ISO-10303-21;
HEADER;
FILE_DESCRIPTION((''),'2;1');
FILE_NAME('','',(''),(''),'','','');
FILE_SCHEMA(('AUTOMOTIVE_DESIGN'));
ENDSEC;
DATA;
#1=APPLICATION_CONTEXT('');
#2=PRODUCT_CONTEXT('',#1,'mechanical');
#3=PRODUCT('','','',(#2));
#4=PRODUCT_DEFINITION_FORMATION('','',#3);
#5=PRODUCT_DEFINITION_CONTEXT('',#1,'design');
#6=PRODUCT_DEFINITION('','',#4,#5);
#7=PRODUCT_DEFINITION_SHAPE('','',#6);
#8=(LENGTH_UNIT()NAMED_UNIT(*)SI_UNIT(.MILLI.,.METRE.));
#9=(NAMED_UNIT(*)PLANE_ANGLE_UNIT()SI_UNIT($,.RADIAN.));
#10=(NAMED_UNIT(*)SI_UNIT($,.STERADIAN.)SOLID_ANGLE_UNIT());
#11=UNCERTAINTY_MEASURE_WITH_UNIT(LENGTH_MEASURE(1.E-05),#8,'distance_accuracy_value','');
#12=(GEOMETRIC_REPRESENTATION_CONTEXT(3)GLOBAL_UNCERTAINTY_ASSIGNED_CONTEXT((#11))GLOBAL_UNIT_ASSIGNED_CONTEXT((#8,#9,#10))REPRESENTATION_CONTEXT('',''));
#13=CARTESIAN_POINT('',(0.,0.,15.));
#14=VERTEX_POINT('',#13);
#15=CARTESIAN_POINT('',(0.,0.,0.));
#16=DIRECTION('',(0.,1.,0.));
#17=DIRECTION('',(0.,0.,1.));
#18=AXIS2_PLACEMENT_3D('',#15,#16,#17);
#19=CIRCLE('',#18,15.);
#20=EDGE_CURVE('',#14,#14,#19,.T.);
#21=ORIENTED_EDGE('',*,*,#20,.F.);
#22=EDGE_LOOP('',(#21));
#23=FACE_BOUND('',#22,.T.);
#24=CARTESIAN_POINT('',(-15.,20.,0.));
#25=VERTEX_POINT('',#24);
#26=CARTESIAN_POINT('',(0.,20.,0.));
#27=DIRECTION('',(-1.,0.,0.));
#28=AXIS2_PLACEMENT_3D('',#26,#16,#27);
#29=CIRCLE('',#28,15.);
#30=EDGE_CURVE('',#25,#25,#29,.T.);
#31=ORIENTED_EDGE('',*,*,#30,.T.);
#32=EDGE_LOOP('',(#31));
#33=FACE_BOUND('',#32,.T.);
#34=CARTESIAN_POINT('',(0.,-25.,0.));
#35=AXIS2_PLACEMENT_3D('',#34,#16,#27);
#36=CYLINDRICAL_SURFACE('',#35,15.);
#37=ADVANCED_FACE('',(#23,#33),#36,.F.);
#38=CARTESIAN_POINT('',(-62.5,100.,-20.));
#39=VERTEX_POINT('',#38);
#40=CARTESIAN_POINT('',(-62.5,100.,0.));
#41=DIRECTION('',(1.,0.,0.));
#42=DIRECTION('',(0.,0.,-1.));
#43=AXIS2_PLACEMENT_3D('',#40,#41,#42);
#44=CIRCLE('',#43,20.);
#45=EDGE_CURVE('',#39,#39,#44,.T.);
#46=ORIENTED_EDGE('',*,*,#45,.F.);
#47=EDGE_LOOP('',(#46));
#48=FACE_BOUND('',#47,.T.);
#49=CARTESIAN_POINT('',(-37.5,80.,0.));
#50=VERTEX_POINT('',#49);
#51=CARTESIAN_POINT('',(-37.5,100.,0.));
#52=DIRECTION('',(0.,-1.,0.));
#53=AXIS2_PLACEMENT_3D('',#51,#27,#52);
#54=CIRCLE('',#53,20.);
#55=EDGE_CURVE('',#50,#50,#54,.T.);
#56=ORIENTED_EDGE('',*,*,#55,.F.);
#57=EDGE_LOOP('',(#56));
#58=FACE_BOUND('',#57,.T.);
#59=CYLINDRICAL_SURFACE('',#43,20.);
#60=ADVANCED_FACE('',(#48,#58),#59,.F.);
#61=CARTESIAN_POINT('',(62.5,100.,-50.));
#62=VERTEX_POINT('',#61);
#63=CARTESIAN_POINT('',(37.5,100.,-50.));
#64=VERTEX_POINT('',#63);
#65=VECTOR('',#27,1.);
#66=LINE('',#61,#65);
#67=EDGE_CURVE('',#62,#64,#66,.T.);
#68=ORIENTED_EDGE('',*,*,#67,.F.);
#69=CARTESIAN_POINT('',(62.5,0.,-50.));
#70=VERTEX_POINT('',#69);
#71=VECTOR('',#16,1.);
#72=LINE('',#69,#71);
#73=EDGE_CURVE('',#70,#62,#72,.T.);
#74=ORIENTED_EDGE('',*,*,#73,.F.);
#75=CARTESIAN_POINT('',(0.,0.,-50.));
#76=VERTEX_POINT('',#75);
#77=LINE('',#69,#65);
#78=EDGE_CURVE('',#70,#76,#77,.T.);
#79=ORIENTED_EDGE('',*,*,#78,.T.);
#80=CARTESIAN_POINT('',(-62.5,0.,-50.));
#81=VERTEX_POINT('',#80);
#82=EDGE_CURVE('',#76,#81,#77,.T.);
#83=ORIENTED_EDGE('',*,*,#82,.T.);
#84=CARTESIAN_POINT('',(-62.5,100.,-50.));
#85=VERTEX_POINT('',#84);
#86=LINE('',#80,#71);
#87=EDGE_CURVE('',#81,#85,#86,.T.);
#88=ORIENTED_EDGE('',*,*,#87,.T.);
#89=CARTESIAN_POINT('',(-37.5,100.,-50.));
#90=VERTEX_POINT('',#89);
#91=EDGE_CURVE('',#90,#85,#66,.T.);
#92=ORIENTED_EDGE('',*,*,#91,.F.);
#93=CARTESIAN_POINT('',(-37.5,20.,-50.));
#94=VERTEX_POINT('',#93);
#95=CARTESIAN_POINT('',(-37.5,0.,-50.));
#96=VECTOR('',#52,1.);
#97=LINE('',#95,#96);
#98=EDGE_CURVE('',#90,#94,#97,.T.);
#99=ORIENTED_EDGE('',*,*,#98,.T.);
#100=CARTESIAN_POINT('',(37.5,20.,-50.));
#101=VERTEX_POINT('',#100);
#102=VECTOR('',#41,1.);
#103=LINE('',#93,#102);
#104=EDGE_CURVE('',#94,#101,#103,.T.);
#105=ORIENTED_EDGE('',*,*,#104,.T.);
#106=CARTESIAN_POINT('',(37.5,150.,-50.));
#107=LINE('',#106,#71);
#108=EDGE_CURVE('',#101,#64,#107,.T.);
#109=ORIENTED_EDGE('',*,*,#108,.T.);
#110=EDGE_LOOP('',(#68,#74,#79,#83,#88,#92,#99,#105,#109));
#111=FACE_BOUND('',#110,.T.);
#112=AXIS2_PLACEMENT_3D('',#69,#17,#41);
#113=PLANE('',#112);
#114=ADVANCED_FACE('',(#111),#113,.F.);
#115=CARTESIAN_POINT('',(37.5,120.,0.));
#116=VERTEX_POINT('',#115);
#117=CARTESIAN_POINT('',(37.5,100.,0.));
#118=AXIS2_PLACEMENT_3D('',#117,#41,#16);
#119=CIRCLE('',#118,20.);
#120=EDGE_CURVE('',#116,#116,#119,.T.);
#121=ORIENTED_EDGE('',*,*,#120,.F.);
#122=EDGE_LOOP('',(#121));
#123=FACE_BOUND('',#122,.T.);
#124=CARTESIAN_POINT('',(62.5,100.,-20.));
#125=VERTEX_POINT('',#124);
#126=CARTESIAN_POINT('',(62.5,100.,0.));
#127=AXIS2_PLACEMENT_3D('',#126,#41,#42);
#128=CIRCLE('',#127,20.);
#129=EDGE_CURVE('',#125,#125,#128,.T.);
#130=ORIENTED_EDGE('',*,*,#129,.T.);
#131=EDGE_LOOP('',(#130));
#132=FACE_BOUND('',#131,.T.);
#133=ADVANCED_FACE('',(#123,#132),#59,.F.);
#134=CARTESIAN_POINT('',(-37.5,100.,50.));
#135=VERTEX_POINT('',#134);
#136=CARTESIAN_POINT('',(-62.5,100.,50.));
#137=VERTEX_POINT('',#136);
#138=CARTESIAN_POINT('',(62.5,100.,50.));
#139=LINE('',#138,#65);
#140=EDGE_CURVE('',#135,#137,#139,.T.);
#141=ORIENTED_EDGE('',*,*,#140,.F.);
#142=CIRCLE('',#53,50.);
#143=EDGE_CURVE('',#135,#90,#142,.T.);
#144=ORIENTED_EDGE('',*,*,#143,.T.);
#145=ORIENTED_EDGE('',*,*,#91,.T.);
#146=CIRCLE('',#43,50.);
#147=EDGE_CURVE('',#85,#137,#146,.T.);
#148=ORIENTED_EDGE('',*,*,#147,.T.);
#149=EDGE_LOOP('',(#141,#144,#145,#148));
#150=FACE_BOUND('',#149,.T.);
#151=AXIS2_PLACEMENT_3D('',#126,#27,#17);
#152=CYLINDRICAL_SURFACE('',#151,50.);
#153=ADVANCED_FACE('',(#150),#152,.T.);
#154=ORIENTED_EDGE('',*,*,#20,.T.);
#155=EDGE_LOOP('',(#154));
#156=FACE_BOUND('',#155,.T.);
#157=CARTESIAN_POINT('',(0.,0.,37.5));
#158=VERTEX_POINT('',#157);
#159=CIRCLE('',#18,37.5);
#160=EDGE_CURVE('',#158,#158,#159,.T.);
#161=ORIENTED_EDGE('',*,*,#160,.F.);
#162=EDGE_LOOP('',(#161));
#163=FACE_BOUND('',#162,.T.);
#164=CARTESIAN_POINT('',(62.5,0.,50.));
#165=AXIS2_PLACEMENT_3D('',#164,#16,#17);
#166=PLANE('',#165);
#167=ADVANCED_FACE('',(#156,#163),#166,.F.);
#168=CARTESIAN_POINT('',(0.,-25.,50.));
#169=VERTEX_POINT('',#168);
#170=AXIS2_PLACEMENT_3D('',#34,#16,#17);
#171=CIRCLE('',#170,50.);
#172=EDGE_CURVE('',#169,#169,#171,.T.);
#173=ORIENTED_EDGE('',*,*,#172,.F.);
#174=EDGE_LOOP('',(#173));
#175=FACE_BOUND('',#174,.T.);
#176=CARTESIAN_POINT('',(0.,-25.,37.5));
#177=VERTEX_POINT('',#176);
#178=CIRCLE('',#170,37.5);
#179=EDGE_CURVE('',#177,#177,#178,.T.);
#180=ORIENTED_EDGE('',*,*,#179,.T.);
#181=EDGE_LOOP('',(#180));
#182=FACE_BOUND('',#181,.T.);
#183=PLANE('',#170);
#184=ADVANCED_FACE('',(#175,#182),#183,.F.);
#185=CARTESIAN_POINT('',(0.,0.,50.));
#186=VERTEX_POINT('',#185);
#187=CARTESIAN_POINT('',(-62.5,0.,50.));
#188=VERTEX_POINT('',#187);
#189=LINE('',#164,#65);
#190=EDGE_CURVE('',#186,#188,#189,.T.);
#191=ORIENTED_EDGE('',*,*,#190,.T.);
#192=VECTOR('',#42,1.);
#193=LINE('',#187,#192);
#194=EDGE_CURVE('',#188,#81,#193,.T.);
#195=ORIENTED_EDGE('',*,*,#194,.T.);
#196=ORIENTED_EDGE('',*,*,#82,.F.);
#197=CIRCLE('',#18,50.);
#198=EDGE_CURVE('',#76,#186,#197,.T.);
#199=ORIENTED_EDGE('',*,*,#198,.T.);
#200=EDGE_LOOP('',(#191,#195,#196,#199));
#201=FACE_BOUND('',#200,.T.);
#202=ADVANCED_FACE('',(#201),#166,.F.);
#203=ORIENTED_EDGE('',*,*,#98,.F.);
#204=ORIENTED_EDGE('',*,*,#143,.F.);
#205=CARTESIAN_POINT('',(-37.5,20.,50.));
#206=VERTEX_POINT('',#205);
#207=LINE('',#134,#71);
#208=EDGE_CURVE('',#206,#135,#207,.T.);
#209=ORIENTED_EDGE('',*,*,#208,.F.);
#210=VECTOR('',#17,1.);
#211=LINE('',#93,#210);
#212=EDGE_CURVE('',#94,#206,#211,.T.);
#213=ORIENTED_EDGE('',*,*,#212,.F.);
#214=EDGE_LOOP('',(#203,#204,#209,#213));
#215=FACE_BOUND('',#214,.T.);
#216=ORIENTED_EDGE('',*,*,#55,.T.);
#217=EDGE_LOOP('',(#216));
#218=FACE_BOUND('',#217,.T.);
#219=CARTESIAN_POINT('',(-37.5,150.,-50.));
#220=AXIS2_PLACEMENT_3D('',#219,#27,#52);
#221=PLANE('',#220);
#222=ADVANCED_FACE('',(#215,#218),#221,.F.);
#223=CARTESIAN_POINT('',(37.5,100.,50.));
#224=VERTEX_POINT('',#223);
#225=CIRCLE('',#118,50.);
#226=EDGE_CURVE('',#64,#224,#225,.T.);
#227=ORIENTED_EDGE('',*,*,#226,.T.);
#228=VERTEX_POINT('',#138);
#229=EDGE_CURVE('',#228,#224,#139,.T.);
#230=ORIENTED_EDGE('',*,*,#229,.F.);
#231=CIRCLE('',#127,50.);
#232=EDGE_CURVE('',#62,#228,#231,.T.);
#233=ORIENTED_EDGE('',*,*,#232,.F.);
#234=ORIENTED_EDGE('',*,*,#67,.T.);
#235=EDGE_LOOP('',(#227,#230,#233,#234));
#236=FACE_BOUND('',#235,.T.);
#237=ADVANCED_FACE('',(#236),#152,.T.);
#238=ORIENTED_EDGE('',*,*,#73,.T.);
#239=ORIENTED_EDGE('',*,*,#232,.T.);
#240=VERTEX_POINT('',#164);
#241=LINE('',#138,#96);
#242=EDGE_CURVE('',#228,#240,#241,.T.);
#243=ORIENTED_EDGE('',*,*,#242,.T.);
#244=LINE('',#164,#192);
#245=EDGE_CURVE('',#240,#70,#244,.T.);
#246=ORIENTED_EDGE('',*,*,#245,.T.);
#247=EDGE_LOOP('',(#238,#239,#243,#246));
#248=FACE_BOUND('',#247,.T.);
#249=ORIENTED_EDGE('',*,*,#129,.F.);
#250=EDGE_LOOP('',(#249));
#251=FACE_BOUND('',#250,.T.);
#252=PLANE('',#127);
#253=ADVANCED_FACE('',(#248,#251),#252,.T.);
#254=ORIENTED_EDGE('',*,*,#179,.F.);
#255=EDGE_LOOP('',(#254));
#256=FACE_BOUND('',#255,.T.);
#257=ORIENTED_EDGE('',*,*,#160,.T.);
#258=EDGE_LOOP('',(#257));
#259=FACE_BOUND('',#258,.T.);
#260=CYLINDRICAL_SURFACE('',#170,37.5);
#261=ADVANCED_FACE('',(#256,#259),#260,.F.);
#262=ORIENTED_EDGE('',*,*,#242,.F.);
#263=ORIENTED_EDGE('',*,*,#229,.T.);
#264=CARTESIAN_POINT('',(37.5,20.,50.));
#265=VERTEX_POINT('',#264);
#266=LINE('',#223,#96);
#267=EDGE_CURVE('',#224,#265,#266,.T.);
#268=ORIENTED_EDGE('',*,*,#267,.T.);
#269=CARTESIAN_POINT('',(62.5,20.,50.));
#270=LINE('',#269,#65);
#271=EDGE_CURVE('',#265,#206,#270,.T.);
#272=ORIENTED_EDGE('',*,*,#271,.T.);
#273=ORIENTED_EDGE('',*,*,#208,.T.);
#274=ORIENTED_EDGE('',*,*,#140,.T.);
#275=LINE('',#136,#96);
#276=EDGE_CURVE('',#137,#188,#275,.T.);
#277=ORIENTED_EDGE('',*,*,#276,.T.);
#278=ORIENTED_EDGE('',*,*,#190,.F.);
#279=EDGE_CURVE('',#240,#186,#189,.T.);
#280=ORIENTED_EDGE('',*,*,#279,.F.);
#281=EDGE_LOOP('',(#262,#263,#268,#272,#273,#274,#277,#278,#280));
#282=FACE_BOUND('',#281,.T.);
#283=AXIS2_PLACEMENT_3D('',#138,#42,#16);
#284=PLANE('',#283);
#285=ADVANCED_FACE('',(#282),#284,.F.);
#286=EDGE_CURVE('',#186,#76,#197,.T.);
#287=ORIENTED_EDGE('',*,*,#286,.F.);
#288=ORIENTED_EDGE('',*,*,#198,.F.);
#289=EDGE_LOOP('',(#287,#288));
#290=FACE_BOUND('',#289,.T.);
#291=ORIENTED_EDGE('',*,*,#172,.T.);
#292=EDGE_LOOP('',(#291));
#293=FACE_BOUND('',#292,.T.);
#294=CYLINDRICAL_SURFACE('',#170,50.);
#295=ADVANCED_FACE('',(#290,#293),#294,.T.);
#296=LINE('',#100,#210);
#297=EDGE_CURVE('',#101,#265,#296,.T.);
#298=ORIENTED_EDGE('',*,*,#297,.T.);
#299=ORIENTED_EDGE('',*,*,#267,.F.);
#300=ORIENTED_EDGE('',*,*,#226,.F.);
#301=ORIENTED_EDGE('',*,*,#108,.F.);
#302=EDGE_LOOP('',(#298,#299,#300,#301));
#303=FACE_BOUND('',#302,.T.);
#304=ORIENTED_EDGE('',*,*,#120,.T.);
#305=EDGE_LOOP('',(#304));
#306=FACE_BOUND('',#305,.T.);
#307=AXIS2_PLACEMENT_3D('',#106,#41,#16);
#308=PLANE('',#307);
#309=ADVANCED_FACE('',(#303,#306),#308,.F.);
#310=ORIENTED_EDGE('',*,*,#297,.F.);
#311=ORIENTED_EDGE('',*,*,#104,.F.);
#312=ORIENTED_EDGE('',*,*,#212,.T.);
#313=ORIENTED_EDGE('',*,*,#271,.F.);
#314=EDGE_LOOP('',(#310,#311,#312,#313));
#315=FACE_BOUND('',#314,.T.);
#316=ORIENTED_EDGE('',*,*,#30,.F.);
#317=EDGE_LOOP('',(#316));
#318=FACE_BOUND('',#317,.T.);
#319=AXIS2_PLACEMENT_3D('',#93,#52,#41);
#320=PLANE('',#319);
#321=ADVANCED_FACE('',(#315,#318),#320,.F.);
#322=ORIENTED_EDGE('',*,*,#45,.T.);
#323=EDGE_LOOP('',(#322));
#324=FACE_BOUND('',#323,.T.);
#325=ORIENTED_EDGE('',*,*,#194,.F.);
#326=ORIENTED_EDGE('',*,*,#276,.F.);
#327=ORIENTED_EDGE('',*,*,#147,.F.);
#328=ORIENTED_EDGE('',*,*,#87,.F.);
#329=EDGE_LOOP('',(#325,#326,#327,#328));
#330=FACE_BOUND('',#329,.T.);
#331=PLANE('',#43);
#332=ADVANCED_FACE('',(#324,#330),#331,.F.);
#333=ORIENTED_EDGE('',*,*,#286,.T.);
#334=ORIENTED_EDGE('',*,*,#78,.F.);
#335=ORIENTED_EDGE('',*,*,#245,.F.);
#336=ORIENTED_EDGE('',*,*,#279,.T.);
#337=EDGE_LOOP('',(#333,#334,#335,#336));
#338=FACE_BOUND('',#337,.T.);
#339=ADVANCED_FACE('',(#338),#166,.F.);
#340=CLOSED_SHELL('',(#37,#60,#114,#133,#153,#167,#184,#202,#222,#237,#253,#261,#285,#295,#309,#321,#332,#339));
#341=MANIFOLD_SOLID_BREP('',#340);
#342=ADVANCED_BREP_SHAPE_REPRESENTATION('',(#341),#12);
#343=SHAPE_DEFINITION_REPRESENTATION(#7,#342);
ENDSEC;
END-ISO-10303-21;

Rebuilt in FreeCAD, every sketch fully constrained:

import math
import FreeCAD as App
import Part
import Sketcher
from FreeCAD import Vector


def add_polygon(sketch, points):
    """Adds a closed chain of lines whose ends are joined by coincident constraints."""
    first, n = sketch.GeometryCount, len(points)
    for a, b in zip(points, points[1:] + points[:1]):
        sketch.addGeometry(Part.LineSegment(App.Vector(*a, 0), App.Vector(*b, 0)), False)
    for i in range(n):
        sketch.addConstraint(Sketcher.Constraint("Coincident", first + i, 2, first + (i + 1) % n, 1))

doc = App.newDocument("Part")
body = doc.addObject("PartDesign::Body", "Body")

# Sketch on XZ plane
sketch1 = body.newObject("Sketcher::SketchObject", "Sketch")
sketch1.AttachmentSupport = (doc.getObject("XZ_Plane"), [""])
sketch1.MapMode = "FlatFace"
sketch1.addGeometry([
    Part.Circle(Vector(0, 0, 0), Vector(0, 0, 1), 50),
    Part.Circle(Vector(0, 0, 0), Vector(0, 0, 1), 38),
], False)
sketch1.addConstraint([
    Sketcher.Constraint("Coincident", 0, 3, -1, 1),
    Sketcher.Constraint("Coincident", 1, 3, -1, 1),
    Sketcher.Constraint("Diameter", 0, 100.0),
    Sketcher.Constraint("Diameter", 1, 75.0),
])
pad1 = body.newObject("PartDesign::Pad", "Pad")
pad1.Profile = sketch1
pad1.Length = 25

# Sketch on YZ plane
sketch2 = body.newObject("Sketcher::SketchObject", "Sketch001")
sketch2.AttachmentSupport = (doc.getObject("YZ_Plane"), [""])
sketch2.MapMode = "FlatFace"
sketch2.addGeometry([
    Part.LineSegment(Vector(0, 50, 0), Vector(0, -50, 0)),
    Part.LineSegment(Vector(0, -50, 0), Vector(100, -50, 0)),
    Part.ArcOfCircle(Part.Circle(Vector(100, 0, 0), Vector(0, 0, 1), 50), math.radians(-90), math.radians(90)),
    Part.LineSegment(Vector(100, 50, 0), Vector(0, 50, 0)),
], False)
sketch2.addConstraint([
    Sketcher.Constraint("Coincident", 0, 2, 1, 1),
    Sketcher.Constraint("Tangent", 1, 2, 2, 1),
    Sketcher.Constraint("Tangent", 2, 2, 3, 1),
    Sketcher.Constraint("Coincident", 3, 2, 0, 1),
    Sketcher.Constraint("Vertical", 0),
    Sketcher.Constraint("Horizontal", 1),
    Sketcher.Constraint("Horizontal", 3),
    Sketcher.Constraint("Symmetric", 0, 2, 3, 2, -1, 1),
    Sketcher.Constraint("Equal", 3, 0),
    Sketcher.Constraint("Radius", 2, 50.0),
])
pad2 = body.newObject("PartDesign::Pad", "Pad001")
pad2.Profile = sketch2
pad2.Length = 125
pad2.Midplane = True

# Sketch on XY plane
sketch3 = body.newObject("Sketcher::SketchObject", "Sketch002")
sketch3.AttachmentSupport = (doc.getObject("XY_Plane"), [""])
sketch3.MapMode = "FlatFace"
sketch3.AttachmentOffset = App.Placement(Vector(0, 0, 50), App.Rotation())
add_polygon(sketch3, [(-38, 150), (-38, 20), (38, 20), (38, 150)])  # lines 0-3
sketch3.addConstraint([
    Sketcher.Constraint("Vertical", 0),
    Sketcher.Constraint("Horizontal", 1),
    Sketcher.Constraint("Vertical", 2),
    Sketcher.Constraint("Horizontal", 3),
    Sketcher.Constraint("DistanceX", 1, 1, 1, 2, 75.0),
    Sketcher.Constraint("DistanceY", 0, 2, 0, 1, 130.0),
    Sketcher.Constraint("DistanceY", -1, 1, 0, 2, 20.0),
    Sketcher.Constraint("DistanceX", 0, 2, -1, 1, 37.5),
])
pocket1 = body.newObject("PartDesign::Pocket", "Pocket")
pocket1.Profile = sketch3
pocket1.Type = "ThroughAll"
pocket1.Midplane = True

# Sketch on XZ plane
sketch4 = body.newObject("Sketcher::SketchObject", "Sketch003")
sketch4.AttachmentSupport = (doc.getObject("XZ_Plane"), [""])
sketch4.MapMode = "FlatFace"
sketch4.AttachmentOffset = App.Placement(Vector(0, 0, -20), App.Rotation())
sketch4.addGeometry(Part.Circle(Vector(0, 0, 0), Vector(0, 0, 1), 15), False)
sketch4.addConstraint([
    Sketcher.Constraint("Coincident", 0, 3, -1, 1),
    Sketcher.Constraint("Diameter", 0, 30.0),
])
pocket2 = body.newObject("PartDesign::Pocket", "Pocket001")
pocket2.Profile = sketch4
pocket2.Type = "ThroughAll"
pocket2.Reversed = True

# Sketch on YZ plane
sketch5 = body.newObject("Sketcher::SketchObject", "Sketch004")
sketch5.AttachmentSupport = (doc.getObject("YZ_Plane"), [""])
sketch5.MapMode = "FlatFace"
sketch5.AttachmentOffset = App.Placement(Vector(0, 0, 62.5), App.Rotation())
sketch5.addGeometry(Part.Circle(Vector(100, 0, 0), Vector(0, 0, 1), 20), False)
sketch5.addConstraint([
    Sketcher.Constraint("PointOnObject", 0, 3, -1),
    Sketcher.Constraint("Diameter", 0, 40.0),
    Sketcher.Constraint("DistanceX", -1, 1, 0, 3, 100.0),
])
pocket3 = body.newObject("PartDesign::Pocket", "Pocket002")
pocket3.Profile = sketch5
pocket3.Type = "ThroughAll"

doc.recompute()
